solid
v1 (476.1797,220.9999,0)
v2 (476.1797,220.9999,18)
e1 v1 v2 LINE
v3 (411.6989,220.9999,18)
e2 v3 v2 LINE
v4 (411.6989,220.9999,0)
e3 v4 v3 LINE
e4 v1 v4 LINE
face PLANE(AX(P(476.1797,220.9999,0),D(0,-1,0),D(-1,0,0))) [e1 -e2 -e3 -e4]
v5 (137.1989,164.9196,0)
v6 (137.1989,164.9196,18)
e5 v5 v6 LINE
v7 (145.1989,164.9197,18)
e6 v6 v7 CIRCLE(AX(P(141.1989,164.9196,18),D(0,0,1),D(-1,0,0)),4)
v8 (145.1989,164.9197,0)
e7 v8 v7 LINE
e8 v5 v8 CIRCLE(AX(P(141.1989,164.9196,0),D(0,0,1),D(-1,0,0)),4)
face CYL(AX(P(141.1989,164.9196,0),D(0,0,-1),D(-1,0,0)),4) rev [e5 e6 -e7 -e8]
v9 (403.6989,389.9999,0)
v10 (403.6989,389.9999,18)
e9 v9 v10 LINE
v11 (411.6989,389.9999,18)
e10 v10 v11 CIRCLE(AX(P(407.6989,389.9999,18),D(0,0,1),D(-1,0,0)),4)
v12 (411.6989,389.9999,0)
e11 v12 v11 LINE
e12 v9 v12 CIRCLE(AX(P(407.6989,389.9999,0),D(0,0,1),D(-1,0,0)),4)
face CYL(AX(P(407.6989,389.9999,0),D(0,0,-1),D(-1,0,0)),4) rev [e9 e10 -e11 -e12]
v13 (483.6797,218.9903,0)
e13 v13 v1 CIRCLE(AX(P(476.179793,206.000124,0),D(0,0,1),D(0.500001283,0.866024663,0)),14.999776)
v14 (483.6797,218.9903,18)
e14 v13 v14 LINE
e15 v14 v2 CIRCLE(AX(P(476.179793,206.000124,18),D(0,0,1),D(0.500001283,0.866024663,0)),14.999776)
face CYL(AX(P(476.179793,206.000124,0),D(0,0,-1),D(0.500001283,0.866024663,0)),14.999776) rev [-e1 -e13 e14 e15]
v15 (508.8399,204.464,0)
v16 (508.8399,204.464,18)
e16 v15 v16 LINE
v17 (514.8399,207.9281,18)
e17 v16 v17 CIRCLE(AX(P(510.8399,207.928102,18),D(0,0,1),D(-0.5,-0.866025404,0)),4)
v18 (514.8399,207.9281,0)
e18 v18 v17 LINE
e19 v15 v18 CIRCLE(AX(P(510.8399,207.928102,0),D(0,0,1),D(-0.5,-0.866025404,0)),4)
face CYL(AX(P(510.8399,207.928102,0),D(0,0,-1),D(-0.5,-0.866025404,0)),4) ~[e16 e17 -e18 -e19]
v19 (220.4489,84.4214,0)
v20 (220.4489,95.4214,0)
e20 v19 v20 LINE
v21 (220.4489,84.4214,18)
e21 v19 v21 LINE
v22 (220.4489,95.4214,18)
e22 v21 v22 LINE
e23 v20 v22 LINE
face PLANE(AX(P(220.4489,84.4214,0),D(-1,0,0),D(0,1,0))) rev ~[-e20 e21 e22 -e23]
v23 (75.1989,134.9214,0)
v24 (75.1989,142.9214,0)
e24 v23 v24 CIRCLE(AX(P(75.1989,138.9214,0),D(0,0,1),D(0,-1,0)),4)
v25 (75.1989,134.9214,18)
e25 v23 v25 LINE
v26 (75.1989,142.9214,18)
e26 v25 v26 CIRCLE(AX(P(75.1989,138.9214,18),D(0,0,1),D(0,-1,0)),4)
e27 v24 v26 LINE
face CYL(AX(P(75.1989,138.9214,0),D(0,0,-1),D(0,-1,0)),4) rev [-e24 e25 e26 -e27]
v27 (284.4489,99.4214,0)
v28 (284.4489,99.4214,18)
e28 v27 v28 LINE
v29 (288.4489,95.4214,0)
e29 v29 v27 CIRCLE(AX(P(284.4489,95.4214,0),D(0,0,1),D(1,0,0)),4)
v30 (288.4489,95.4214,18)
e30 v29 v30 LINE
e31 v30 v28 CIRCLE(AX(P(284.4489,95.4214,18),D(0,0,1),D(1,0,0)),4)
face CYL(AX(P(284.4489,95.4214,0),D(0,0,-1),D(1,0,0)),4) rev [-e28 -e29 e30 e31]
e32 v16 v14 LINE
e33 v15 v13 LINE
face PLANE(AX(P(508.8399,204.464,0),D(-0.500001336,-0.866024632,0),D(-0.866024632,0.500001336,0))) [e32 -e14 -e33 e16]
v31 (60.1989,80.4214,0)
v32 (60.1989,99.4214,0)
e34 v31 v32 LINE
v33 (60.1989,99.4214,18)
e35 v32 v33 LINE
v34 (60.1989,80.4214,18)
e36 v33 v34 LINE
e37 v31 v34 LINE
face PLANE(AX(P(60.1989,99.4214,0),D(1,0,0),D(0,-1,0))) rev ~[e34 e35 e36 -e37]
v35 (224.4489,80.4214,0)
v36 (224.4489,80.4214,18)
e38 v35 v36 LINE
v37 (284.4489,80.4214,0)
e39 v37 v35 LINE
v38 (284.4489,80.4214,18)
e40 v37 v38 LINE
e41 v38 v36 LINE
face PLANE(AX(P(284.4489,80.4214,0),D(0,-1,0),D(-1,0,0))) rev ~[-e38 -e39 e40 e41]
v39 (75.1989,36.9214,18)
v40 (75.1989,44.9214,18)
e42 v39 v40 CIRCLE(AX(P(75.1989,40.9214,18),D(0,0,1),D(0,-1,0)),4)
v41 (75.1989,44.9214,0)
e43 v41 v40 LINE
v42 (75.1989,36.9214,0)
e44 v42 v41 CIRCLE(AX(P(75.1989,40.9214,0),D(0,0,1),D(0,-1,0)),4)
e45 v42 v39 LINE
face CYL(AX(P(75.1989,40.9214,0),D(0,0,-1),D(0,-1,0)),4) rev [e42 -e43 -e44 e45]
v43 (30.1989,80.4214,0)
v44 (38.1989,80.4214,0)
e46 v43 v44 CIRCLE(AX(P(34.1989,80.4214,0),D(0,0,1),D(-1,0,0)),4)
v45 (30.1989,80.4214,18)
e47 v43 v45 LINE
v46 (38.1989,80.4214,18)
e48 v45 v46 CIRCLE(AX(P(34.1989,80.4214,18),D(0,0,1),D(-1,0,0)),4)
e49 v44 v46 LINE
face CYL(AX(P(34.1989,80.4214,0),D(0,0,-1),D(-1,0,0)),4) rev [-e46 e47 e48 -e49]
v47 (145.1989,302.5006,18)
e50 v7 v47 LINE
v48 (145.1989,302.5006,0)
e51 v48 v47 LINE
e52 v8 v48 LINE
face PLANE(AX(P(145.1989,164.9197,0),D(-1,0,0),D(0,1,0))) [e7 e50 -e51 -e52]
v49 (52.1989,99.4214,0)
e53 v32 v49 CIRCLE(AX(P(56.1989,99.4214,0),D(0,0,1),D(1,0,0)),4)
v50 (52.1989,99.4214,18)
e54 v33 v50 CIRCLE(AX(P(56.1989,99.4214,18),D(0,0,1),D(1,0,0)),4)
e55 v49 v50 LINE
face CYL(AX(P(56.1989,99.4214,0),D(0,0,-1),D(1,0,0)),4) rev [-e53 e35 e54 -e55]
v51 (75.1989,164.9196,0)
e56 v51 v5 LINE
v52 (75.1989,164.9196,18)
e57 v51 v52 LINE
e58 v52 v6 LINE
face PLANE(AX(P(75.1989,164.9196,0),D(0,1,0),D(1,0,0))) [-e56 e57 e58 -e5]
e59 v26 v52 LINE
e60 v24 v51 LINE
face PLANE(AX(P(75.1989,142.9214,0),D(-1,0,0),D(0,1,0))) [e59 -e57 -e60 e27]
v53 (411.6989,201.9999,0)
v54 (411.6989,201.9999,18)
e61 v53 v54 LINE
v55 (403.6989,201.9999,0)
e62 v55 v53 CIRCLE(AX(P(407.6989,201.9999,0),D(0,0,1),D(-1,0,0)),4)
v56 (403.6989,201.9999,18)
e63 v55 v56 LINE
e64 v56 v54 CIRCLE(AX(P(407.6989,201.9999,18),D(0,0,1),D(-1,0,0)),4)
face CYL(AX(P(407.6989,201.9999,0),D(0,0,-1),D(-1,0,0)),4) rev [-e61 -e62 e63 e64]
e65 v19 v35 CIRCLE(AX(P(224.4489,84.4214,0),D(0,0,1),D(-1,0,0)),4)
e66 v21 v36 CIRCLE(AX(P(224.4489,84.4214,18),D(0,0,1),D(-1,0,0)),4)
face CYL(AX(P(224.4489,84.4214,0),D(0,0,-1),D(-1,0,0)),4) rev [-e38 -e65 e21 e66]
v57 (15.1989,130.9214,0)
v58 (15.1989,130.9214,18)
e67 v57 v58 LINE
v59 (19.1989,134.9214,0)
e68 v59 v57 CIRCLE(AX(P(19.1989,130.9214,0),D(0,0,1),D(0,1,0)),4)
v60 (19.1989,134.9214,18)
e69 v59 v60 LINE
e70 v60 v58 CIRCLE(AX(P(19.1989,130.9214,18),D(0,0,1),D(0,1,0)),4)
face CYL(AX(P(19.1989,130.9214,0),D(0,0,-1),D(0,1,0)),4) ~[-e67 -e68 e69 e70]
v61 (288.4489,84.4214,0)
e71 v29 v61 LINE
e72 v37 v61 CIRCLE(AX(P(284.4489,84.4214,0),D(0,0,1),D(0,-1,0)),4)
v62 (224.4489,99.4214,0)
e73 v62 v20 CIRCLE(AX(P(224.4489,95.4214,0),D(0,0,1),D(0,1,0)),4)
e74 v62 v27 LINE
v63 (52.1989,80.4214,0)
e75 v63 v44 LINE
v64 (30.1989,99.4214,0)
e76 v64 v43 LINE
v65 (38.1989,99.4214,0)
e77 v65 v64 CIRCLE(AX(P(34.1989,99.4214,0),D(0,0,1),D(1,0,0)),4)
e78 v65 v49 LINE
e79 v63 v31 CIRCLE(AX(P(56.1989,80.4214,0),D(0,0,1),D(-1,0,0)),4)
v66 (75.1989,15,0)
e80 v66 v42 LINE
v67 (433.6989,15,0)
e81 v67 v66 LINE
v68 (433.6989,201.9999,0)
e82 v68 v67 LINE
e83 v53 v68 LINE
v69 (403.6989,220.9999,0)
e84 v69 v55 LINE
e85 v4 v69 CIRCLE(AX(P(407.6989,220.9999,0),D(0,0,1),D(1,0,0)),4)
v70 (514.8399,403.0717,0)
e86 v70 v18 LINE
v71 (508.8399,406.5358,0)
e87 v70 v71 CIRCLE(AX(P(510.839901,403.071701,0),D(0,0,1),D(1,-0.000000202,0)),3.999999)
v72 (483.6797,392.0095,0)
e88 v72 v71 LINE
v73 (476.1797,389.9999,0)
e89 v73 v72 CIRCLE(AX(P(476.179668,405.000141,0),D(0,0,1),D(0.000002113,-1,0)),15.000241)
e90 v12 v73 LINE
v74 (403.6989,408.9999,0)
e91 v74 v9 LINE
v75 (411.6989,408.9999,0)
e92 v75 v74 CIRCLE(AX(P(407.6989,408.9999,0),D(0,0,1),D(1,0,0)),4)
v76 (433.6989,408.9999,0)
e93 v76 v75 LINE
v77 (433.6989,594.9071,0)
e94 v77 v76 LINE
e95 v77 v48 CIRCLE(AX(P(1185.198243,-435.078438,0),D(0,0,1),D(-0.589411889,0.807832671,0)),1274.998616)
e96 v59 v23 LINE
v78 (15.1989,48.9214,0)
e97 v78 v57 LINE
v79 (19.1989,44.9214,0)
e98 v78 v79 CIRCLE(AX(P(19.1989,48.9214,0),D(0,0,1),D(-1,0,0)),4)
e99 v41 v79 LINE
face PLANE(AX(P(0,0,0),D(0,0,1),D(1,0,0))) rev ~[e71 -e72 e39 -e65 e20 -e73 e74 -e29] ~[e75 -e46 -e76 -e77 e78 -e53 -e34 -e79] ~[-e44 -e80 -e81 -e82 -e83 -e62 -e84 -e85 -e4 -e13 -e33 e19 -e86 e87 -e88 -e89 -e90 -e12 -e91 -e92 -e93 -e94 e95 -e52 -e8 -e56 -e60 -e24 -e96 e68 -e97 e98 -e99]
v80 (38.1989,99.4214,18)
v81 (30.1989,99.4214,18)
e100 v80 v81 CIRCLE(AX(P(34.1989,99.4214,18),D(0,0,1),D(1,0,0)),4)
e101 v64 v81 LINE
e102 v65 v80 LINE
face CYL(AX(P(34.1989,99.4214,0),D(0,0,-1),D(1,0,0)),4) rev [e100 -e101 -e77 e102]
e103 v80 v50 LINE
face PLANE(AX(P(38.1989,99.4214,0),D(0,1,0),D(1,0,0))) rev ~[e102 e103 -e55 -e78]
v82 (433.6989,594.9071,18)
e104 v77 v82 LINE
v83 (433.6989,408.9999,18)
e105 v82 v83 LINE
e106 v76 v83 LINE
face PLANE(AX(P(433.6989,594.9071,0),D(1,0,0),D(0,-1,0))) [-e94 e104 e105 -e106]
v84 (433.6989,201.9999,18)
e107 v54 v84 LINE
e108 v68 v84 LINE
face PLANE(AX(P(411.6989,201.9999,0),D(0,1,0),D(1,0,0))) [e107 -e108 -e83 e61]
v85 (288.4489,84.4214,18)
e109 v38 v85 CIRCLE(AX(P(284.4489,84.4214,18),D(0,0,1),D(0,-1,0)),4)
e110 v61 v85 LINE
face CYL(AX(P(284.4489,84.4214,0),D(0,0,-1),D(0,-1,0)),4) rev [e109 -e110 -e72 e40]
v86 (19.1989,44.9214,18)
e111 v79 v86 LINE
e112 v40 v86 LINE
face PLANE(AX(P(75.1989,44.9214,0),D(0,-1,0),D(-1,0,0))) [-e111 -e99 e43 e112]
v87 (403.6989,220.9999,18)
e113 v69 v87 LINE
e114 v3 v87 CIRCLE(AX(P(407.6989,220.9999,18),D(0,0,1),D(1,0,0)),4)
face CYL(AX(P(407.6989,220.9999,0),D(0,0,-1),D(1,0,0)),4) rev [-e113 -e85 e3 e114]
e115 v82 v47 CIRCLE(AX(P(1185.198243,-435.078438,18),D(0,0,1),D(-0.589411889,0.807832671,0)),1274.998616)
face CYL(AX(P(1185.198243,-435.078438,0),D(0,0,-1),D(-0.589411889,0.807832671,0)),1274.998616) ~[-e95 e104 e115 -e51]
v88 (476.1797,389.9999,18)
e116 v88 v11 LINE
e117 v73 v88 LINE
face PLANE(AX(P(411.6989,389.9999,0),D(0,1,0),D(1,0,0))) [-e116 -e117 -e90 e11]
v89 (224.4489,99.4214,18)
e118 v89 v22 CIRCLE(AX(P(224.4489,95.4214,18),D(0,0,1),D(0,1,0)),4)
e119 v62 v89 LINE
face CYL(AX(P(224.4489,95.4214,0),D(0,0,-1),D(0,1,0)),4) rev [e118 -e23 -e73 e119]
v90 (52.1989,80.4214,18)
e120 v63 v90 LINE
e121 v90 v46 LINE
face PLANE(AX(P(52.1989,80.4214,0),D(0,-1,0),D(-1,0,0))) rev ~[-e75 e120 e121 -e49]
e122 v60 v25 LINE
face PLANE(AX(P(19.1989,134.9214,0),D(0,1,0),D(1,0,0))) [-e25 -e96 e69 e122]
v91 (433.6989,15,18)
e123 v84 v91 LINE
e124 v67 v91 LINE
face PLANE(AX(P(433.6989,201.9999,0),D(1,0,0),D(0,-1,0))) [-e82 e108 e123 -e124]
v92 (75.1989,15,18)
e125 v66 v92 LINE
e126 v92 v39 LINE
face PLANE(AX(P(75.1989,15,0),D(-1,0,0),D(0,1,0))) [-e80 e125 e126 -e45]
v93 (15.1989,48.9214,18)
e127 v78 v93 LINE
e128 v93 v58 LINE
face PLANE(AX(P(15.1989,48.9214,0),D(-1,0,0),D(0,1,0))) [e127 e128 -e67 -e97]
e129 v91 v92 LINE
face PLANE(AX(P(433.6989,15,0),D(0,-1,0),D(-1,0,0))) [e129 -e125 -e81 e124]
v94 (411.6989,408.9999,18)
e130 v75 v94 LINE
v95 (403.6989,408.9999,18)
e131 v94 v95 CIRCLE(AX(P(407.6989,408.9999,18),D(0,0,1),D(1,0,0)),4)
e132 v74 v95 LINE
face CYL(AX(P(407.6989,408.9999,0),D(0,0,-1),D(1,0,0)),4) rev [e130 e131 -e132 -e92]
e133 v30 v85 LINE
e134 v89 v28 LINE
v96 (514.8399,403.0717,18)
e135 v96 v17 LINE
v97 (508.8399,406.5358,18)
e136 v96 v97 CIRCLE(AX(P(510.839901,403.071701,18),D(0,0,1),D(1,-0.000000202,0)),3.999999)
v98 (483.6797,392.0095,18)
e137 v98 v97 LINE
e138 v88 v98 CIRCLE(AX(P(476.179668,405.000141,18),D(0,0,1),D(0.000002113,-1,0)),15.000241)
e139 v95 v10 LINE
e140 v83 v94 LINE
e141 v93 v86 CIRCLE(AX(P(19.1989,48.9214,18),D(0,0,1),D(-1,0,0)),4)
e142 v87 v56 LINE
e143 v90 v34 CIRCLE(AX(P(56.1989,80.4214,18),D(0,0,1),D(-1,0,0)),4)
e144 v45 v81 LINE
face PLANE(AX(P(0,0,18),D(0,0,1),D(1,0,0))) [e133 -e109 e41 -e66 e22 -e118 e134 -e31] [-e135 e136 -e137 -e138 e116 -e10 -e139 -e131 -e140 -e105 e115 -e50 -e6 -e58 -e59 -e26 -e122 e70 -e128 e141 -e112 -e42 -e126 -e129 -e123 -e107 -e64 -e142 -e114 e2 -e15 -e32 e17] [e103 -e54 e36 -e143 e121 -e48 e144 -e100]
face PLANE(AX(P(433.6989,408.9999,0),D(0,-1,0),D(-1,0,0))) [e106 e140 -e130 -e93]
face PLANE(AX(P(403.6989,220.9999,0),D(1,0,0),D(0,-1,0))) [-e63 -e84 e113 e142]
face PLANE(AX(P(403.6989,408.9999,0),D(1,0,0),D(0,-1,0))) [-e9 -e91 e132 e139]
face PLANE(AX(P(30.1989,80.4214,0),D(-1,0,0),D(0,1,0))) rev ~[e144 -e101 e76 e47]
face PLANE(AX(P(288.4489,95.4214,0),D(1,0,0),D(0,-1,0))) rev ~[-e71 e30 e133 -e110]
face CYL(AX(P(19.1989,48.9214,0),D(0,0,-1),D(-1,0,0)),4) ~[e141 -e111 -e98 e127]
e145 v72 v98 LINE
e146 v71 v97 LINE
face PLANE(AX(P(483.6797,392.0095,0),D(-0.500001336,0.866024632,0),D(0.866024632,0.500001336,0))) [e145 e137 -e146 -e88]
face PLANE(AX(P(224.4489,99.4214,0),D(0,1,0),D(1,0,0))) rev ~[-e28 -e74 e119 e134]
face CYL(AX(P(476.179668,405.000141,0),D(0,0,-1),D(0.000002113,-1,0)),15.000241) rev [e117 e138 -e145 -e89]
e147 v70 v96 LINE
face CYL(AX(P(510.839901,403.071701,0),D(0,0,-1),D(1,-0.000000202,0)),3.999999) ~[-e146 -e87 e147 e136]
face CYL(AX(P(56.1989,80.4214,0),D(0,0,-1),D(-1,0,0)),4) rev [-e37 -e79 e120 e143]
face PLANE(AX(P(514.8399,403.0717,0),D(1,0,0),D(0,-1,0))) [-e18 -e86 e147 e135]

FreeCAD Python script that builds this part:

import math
import FreeCAD as App
import Part
import Sketcher
from FreeCAD import Vector
Q = App.Units.Quantity

doc = App.newDocument("Part")
params = doc.addObject("Spreadsheet::Sheet", "Params")
for row, (alias, value) in enumerate([
    ("sketch1_radius", "4 mm"),
    ("sketch1_radius2", "15 mm"),
    ("sketch1_width", "22 mm"),
    ("sketch1_width2", "62 mm"),
    ("sketch1_width3", "56 mm"),
    ("pad1_length", "18 mm"),
    ("sketch2_height", "19 mm"),
    ("sketch2_radius", "4 mm"),
    ("sketch2_width", "60 mm"),
    ("sketch2_width2", "14 mm"),
    ("pocket1_length", "18 mm"),
], start=1):
    params.set(f"A{row}", alias)
    params.set(f"B{row}", "=" + value)
    params.setAlias(f"B{row}", alias)

body = doc.addObject("PartDesign::Body", "Body")

# Sketch on XY plane
sketch1 = body.newObject("Sketcher::SketchObject", "Sketch")
sketch1.AttachmentSupport = (doc.getObject("XY_Plane"), [""])
sketch1.MapMode = "FlatFace"
sketch1.addGeometry([
    Part.LineSegment(Vector(403.6989, 389.9999, 0), Vector(403.6989, 408.9999, 0)),  # 0
    Part.ArcOfCircle(Part.Circle(Vector(407.6989, 408.9999, 0), Vector(0, 0, 1), 4), math.radians(0), math.radians(180)),  # 1
    Part.LineSegment(Vector(411.6989, 408.9999, 0), Vector(433.6989, 408.9999, 0)),  # 2
    Part.LineSegment(Vector(433.6989, 408.9999, 0), Vector(433.6989, 594.9071, 0)),  # 3
    Part.ArcOfCircle(Part.Circle(Vector(1185.198243, -435.078438, 0), Vector(0, 0, 1), 1274.998616), math.radians(126.115285), math.radians(144.655312)),  # 4
    Part.LineSegment(Vector(145.1989, 302.5006, 0), Vector(145.1989, 164.9197, 0)),  # 5
    Part.ArcOfCircle(Part.Circle(Vector(141.1989, 164.9196, 0), Vector(0, 0, 1), 4), math.radians(180), math.radians(360.001432)),  # 6
    Part.LineSegment(Vector(137.1989, 164.9196, 0), Vector(75.1989, 164.9196, 0)),  # 7
    Part.LineSegment(Vector(75.1989, 164.9196, 0), Vector(75.1989, 142.9214, 0)),  # 8
    Part.ArcOfCircle(Part.Circle(Vector(75.1989, 138.9214, 0), Vector(0, 0, 1), 4), math.radians(-90), math.radians(90)),  # 9
    Part.LineSegment(Vector(75.1989, 134.9214, 0), Vector(19.1989, 134.9214, 0)),  # 10
    Part.ArcOfCircle(Part.Circle(Vector(19.1989, 130.9214, 0), Vector(0, 0, 1), 4), math.radians(90), math.radians(180)),  # 11
    Part.LineSegment(Vector(15.1989, 130.9214, 0), Vector(15.1989, 48.9214, 0)),  # 12
    Part.ArcOfCircle(Part.Circle(Vector(19.1989, 48.9214, 0), Vector(0, 0, 1), 4), math.radians(180), math.radians(270)),  # 13
    Part.LineSegment(Vector(19.1989, 44.9214, 0), Vector(75.1989, 44.9214, 0)),  # 14
    Part.ArcOfCircle(Part.Circle(Vector(75.1989, 40.9214, 0), Vector(0, 0, 1), 4), math.radians(-90), math.radians(90)),  # 15
    Part.LineSegment(Vector(75.1989, 36.9214, 0), Vector(75.1989, 15, 0)),  # 16
    Part.LineSegment(Vector(75.1989, 15, 0), Vector(433.6989, 15, 0)),  # 17
    Part.LineSegment(Vector(433.6989, 15, 0), Vector(433.6989, 201.9999, 0)),  # 18
    Part.LineSegment(Vector(433.6989, 201.9999, 0), Vector(411.6989, 201.9999, 0)),  # 19
    Part.ArcOfCircle(Part.Circle(Vector(407.6989, 201.9999, 0), Vector(0, 0, 1), 4), math.radians(180), math.radians(360)),  # 20
    Part.LineSegment(Vector(403.6989, 201.9999, 0), Vector(403.6989, 220.9999, 0)),  # 21
    Part.ArcOfCircle(Part.Circle(Vector(407.6989, 220.9999, 0), Vector(0, 0, 1), 4), math.radians(0), math.radians(180)),  # 22
    Part.LineSegment(Vector(411.6989, 220.9999, 0), Vector(476.1797, 220.9999, 0)),  # 23
    Part.ArcOfCircle(Part.Circle(Vector(476.1797, 205.9999, 0), Vector(0, 0, 1), 15.000016), math.radians(60.000036), math.radians(90)),  # 24
    Part.LineSegment(Vector(483.6797, 218.9903, 0), Vector(508.8399, 204.464, 0)),  # 25
    Part.ArcOfCircle(Part.Circle(Vector(510.8399, 207.9281, 0), Vector(0, 0, 1), 3.999999), math.radians(-120.000012), math.radians(0)),  # 26
    Part.LineSegment(Vector(514.8399, 207.9281, 0), Vector(514.8399, 403.0717, 0)),  # 27
    Part.ArcOfCircle(Part.Circle(Vector(510.8399, 403.0717, 0), Vector(0, 0, 1), 4), math.radians(0), math.radians(120.000012)),  # 28
    Part.LineSegment(Vector(508.8399, 406.5358, 0), Vector(483.6797, 392.0095, 0)),  # 29
    Part.ArcOfCircle(Part.Circle(Vector(476.1797, 404.9999, 0), Vector(0, 0, 1), 15), math.radians(-90), math.radians(-60.000036)),  # 30
    Part.LineSegment(Vector(476.1797, 389.9999, 0), Vector(411.6989, 389.9999, 0)),  # 31
    Part.ArcOfCircle(Part.Circle(Vector(407.6989, 389.9999, 0), Vector(0, 0, 1), 4), math.radians(180), math.radians(360)),  # 32
], False)
sketch1.addConstraint([
    Sketcher.Constraint("Tangent", 0, 2, 1, 2),
    Sketcher.Constraint("Coincident", 1, 1, 2, 1),
    Sketcher.Constraint("Coincident", 2, 2, 3, 1),
    Sketcher.Constraint("Coincident", 3, 2, 4, 1),
    Sketcher.Constraint("Coincident", 4, 2, 5, 1),
    Sketcher.Constraint("Tangent", 5, 2, 6, 2),
    Sketcher.Constraint("Coincident", 6, 1, 7, 1),
    Sketcher.Constraint("Coincident", 7, 2, 8, 1),
    Sketcher.Constraint("Coincident", 8, 2, 9, 2),
    Sketcher.Constraint("Tangent", 9, 1, 10, 1),
    Sketcher.Constraint("Tangent", 10, 2, 11, 1),
    Sketcher.Constraint("Tangent", 11, 2, 12, 1),
    Sketcher.Constraint("Tangent", 12, 2, 13, 1),
    Sketcher.Constraint("Tangent", 13, 2, 14, 1),
    Sketcher.Constraint("Tangent", 14, 2, 15, 2),
    Sketcher.Constraint("Coincident", 15, 1, 16, 1),
    Sketcher.Constraint("Coincident", 16, 2, 17, 1),
    Sketcher.Constraint("Coincident", 17, 2, 18, 1),
    Sketcher.Constraint("Coincident", 18, 2, 19, 1),
    Sketcher.Constraint("Coincident", 19, 2, 20, 2),
    Sketcher.Constraint("Tangent", 20, 1, 21, 1),
    Sketcher.Constraint("Tangent", 21, 2, 22, 2),
    Sketcher.Constraint("Coincident", 22, 1, 23, 1),
    Sketcher.Constraint("Tangent", 23, 2, 24, 2),
    Sketcher.Constraint("Tangent", 24, 1, 25, 1),
    Sketcher.Constraint("Tangent", 25, 2, 26, 1),
    Sketcher.Constraint("Tangent", 26, 2, 27, 1),
    Sketcher.Constraint("Tangent", 27, 2, 28, 1),
    Sketcher.Constraint("Tangent", 28, 2, 29, 1),
    Sketcher.Constraint("Tangent", 29, 2, 30, 2),
    Sketcher.Constraint("Tangent", 30, 1, 31, 1),
    Sketcher.Constraint("Coincident", 31, 2, 32, 2),
    Sketcher.Constraint("Tangent", 32, 1, 0, 1),
    Sketcher.Constraint("Vertical", 0),
    Sketcher.Constraint("Horizontal", 2),
    Sketcher.Constraint("Vertical", 3),
    Sketcher.Constraint("Vertical", 5),
    Sketcher.Constraint("Horizontal", 7),
    Sketcher.Constraint("Vertical", 8),
    Sketcher.Constraint("Horizontal", 10),
    Sketcher.Constraint("Vertical", 12),
    Sketcher.Constraint("Horizontal", 14),
    Sketcher.Constraint("Vertical", 16),
    Sketcher.Constraint("Horizontal", 17),
    Sketcher.Constraint("Vertical", 18),
    Sketcher.Constraint("Horizontal", 19),
    Sketcher.Constraint("Vertical", 21),
    Sketcher.Constraint("Horizontal", 23),
    Sketcher.Constraint("Vertical", 27),
    Sketcher.Constraint("Horizontal", 31),
    Sketcher.Constraint("Equal", 1, 6),
    Sketcher.Constraint("Equal", 6, 9),
    Sketcher.Constraint("Equal", 9, 11),
    Sketcher.Constraint("Equal", 11, 13),
    Sketcher.Constraint("Equal", 13, 15),
    Sketcher.Constraint("Equal", 15, 20),
    Sketcher.Constraint("Equal", 20, 22),
    Sketcher.Constraint("Equal", 22, 26),
    Sketcher.Constraint("Equal", 26, 28),
    Sketcher.Constraint("Equal", 24, 30),
    Sketcher.Constraint("Equal", 28, 32),
    Sketcher.Constraint("Horizontal", 0, 2, 1, 1),
    Sketcher.Constraint("Horizontal", 5, 2, 6, 1),
    Sketcher.Constraint("Horizontal", 20, 3, 18, 2),
    Sketcher.Constraint("Horizontal", 21, 2, 22, 1),
    Sketcher.Constraint("Horizontal", 32, 3, 30, 1),
    Sketcher.Constraint("Vertical", 9, 3, 15, 3),
    Sketcher.Constraint("Vertical", 1, 3, 20, 3),
    Sketcher.Constraint("Vertical", 24, 3, 30, 3),
    Sketcher.Constraint("Vertical", 15, 3, 7, 2),
    Sketcher.Constraint("Vertical", 14, 2, 15, 1),
    Sketcher.Constraint("Vertical", 3, 2, 17, 2),
    Sketcher.Constraint("Vertical", 25, 2, 28, 2),
    Sketcher.Constraint("Equal", 0, 21),
    Sketcher.Constraint("Radius", 1, Q("4 mm")),
    Sketcher.Constraint("Radius", 24, Q("15 mm")),
    Sketcher.Constraint("DistanceX", 2, 1, 2, 2, Q("22 mm")),
    Sketcher.Constraint("DistanceX", 7, 2, 7, 1, Q("62 mm")),
    Sketcher.Constraint("DistanceX", 10, 2, 10, 1, Q("56 mm")),
    Sketcher.Constraint("DistanceY", 0, 1, 0, 2, Q("19 mm")),
    Sketcher.Constraint("DistanceY", 12, 2, 12, 1, Q("82 mm")),
    Sketcher.Constraint("DistanceY", 18, 1, 18, 2, Q("187 mm")),
    Sketcher.Constraint("Angle", 25, Q("-30 deg")),
    Sketcher.Constraint("DistanceX", 17, 1, 17, 2, Q("358.5 mm")),
    Sketcher.Constraint("DistanceY", -1, 1, 1, 3, Q("409 mm")),
    Sketcher.Constraint("DistanceY", -1, 1, 20, 3, Q("202 mm")),
    Sketcher.Constraint("Radius", 4, Q("1274.9986 mm")),
    Sketcher.Constraint("DistanceY", 5, 2, 5, 1, Q("137.581 mm")),
    Sketcher.Constraint("DistanceX", -1, 1, 26, 3, Q("510.84 mm")),
    Sketcher.Constraint("DistanceX", 23, 1, 23, 2, Q("64.4808 mm")),
    Sketcher.Constraint("DistanceY", 3, 1, 3, 2, Q("185.9072 mm")),
    Sketcher.Constraint("DistanceY", 8, 2, 8, 1, Q("21.9982 mm")),
    Sketcher.Constraint("DistanceY", 16, 2, 16, 1, Q("21.9214 mm")),
    Sketcher.Constraint("DistanceY", 27, 1, 27, 2, Q("195.1436 mm")),
])
sketch1.setExpression("Constraints[74]", "Params.sketch1_radius")
sketch1.setExpression("Constraints[75]", "Params.sketch1_radius2")
sketch1.setExpression("Constraints[76]", "Params.sketch1_width")
sketch1.setExpression("Constraints[77]", "Params.sketch1_width2")
sketch1.setExpression("Constraints[78]", "Params.sketch1_width3")
pad1 = body.newObject("PartDesign::Pad", "Pad")
pad1.Profile = sketch1
pad1.setExpression("Length", "Params.pad1_length")

# Sketch on XY plane
sketch2 = body.newObject("Sketcher::SketchObject", "Sketch001")
sketch2.AttachmentSupport = (doc.getObject("XY_Plane"), [""])
sketch2.MapMode = "FlatFace"
sketch2.addGeometry([
    Part.LineSegment(Vector(288.4489, 84.4214, 0), Vector(288.4489, 95.4214, 0)),  # 0
    Part.ArcOfCircle(Part.Circle(Vector(284.4489, 95.4214, 0), Vector(0, 0, 1), 4), math.radians(0), math.radians(90)),  # 1
    Part.LineSegment(Vector(284.4489, 99.4214, 0), Vector(224.4489, 99.4214, 0)),  # 2
    Part.ArcOfCircle(Part.Circle(Vector(224.4489, 95.4214, 0), Vector(0, 0, 1), 4), math.radians(90), math.radians(180)),  # 3
    Part.LineSegment(Vector(220.4489, 95.4214, 0), Vector(220.4489, 84.4214, 0)),  # 4
    Part.ArcOfCircle(Part.Circle(Vector(224.4489, 84.4214, 0), Vector(0, 0, 1), 4), math.radians(180), math.radians(270)),  # 5
    Part.LineSegment(Vector(224.4489, 80.4214, 0), Vector(284.4489, 80.4214, 0)),  # 6
    Part.ArcOfCircle(Part.Circle(Vector(284.4489, 84.4214, 0), Vector(0, 0, 1), 4), math.radians(-90), math.radians(0)),  # 7
    Part.LineSegment(Vector(60.1989, 80.4214, 0), Vector(60.1989, 99.4214, 0)),  # 8
    Part.ArcOfCircle(Part.Circle(Vector(56.1989, 99.4214, 0), Vector(0, 0, 1), 4), math.radians(0), math.radians(180)),  # 9
    Part.LineSegment(Vector(52.1989, 99.4214, 0), Vector(38.1989, 99.4214, 0)),  # 10
    Part.ArcOfCircle(Part.Circle(Vector(34.1989, 99.4214, 0), Vector(0, 0, 1), 4), math.radians(0), math.radians(180)),  # 11
    Part.LineSegment(Vector(30.1989, 99.4214, 0), Vector(30.1989, 80.4214, 0)),  # 12
    Part.ArcOfCircle(Part.Circle(Vector(34.1989, 80.4214, 0), Vector(0, 0, 1), 4), math.radians(180), math.radians(360)),  # 13
    Part.LineSegment(Vector(38.1989, 80.4214, 0), Vector(52.1989, 80.4214, 0)),  # 14
    Part.ArcOfCircle(Part.Circle(Vector(56.1989, 80.4214, 0), Vector(0, 0, 1), 4), math.radians(180), math.radians(360)),  # 15
], False)
sketch2.addConstraint([
    Sketcher.Constraint("Tangent", 0, 2, 1, 1),
    Sketcher.Constraint("Tangent", 1, 2, 2, 1),
    Sketcher.Constraint("Tangent", 2, 2, 3, 1),
    Sketcher.Constraint("Tangent", 3, 2, 4, 1),
    Sketcher.Constraint("Tangent", 4, 2, 5, 1),
    Sketcher.Constraint("Tangent", 5, 2, 6, 1),
    Sketcher.Constraint("Tangent", 6, 2, 7, 1),
    Sketcher.Constraint("Tangent", 7, 2, 0, 1),
    Sketcher.Constraint("Tangent", 8, 2, 9, 1),
    Sketcher.Constraint("Coincident", 9, 2, 10, 1),
    Sketcher.Constraint("Coincident", 10, 2, 11, 1),
    Sketcher.Constraint("Tangent", 11, 2, 12, 1),
    Sketcher.Constraint("Tangent", 12, 2, 13, 1),
    Sketcher.Constraint("Coincident", 13, 2, 14, 1),
    Sketcher.Constraint("Coincident", 14, 2, 15, 1),
    Sketcher.Constraint("Tangent", 15, 2, 8, 1),
    Sketcher.Constraint("Vertical", 0),
    Sketcher.Constraint("Horizontal", 2),
    Sketcher.Constraint("Vertical", 4),
    Sketcher.Constraint("Horizontal", 6),
    Sketcher.Constraint("Vertical", 8),
    Sketcher.Constraint("Horizontal", 10),
    Sketcher.Constraint("Vertical", 12),
    Sketcher.Constraint("Horizontal", 14),
    Sketcher.Constraint("Equal", 1, 3),
    Sketcher.Constraint("Equal", 3, 5),
    Sketcher.Constraint("Equal", 5, 7),
    Sketcher.Constraint("Equal", 7, 9),
    Sketcher.Constraint("Equal", 9, 11),
    Sketcher.Constraint("Equal", 11, 13),
    Sketcher.Constraint("Equal", 13, 15),
    Sketcher.Constraint("Horizontal", 9, 3, 11, 3),
    Sketcher.Constraint("Horizontal", 13, 3, 15, 3),
    Sketcher.Constraint("Horizontal", 11, 3, 1, 2),
    Sketcher.Constraint("Horizontal", 15, 3, 5, 2),
    Sketcher.Constraint("Horizontal", 8, 2, 9, 2),
    Sketcher.Constraint("Horizontal", 12, 2, 13, 2),
    Sketcher.Constraint("DistanceY", 8, 1, 8, 2, Q("19 mm")),
    Sketcher.Constraint("Radius", 1, Q("4 mm")),
    Sketcher.Constraint("DistanceX", 2, 2, 2, 1, Q("60 mm")),
    Sketcher.Constraint("DistanceX", 10, 2, 10, 1, Q("14 mm")),
    Sketcher.Constraint("DistanceX", 9, 3, 3, 3, Q("168.25 mm")),
    Sketcher.Constraint("DistanceX", -1, 1, 1, 3, Q("284.449 mm")),
    Sketcher.Constraint("DistanceY", -1, 1, 1, 3, Q("95.4214 mm")),
])
sketch2.setExpression("Constraints[37]", "Params.sketch2_height")
sketch2.setExpression("Constraints[38]", "Params.sketch2_radius")
sketch2.setExpression("Constraints[39]", "Params.sketch2_width")
sketch2.setExpression("Constraints[40]", "Params.sketch2_width2")
pocket1 = body.newObject("PartDesign::Pocket", "Pocket")
pocket1.Profile = sketch2
pocket1.setExpression("Length", "Params.pocket1_length")
pocket1.Reversed = True

doc.recompute()
